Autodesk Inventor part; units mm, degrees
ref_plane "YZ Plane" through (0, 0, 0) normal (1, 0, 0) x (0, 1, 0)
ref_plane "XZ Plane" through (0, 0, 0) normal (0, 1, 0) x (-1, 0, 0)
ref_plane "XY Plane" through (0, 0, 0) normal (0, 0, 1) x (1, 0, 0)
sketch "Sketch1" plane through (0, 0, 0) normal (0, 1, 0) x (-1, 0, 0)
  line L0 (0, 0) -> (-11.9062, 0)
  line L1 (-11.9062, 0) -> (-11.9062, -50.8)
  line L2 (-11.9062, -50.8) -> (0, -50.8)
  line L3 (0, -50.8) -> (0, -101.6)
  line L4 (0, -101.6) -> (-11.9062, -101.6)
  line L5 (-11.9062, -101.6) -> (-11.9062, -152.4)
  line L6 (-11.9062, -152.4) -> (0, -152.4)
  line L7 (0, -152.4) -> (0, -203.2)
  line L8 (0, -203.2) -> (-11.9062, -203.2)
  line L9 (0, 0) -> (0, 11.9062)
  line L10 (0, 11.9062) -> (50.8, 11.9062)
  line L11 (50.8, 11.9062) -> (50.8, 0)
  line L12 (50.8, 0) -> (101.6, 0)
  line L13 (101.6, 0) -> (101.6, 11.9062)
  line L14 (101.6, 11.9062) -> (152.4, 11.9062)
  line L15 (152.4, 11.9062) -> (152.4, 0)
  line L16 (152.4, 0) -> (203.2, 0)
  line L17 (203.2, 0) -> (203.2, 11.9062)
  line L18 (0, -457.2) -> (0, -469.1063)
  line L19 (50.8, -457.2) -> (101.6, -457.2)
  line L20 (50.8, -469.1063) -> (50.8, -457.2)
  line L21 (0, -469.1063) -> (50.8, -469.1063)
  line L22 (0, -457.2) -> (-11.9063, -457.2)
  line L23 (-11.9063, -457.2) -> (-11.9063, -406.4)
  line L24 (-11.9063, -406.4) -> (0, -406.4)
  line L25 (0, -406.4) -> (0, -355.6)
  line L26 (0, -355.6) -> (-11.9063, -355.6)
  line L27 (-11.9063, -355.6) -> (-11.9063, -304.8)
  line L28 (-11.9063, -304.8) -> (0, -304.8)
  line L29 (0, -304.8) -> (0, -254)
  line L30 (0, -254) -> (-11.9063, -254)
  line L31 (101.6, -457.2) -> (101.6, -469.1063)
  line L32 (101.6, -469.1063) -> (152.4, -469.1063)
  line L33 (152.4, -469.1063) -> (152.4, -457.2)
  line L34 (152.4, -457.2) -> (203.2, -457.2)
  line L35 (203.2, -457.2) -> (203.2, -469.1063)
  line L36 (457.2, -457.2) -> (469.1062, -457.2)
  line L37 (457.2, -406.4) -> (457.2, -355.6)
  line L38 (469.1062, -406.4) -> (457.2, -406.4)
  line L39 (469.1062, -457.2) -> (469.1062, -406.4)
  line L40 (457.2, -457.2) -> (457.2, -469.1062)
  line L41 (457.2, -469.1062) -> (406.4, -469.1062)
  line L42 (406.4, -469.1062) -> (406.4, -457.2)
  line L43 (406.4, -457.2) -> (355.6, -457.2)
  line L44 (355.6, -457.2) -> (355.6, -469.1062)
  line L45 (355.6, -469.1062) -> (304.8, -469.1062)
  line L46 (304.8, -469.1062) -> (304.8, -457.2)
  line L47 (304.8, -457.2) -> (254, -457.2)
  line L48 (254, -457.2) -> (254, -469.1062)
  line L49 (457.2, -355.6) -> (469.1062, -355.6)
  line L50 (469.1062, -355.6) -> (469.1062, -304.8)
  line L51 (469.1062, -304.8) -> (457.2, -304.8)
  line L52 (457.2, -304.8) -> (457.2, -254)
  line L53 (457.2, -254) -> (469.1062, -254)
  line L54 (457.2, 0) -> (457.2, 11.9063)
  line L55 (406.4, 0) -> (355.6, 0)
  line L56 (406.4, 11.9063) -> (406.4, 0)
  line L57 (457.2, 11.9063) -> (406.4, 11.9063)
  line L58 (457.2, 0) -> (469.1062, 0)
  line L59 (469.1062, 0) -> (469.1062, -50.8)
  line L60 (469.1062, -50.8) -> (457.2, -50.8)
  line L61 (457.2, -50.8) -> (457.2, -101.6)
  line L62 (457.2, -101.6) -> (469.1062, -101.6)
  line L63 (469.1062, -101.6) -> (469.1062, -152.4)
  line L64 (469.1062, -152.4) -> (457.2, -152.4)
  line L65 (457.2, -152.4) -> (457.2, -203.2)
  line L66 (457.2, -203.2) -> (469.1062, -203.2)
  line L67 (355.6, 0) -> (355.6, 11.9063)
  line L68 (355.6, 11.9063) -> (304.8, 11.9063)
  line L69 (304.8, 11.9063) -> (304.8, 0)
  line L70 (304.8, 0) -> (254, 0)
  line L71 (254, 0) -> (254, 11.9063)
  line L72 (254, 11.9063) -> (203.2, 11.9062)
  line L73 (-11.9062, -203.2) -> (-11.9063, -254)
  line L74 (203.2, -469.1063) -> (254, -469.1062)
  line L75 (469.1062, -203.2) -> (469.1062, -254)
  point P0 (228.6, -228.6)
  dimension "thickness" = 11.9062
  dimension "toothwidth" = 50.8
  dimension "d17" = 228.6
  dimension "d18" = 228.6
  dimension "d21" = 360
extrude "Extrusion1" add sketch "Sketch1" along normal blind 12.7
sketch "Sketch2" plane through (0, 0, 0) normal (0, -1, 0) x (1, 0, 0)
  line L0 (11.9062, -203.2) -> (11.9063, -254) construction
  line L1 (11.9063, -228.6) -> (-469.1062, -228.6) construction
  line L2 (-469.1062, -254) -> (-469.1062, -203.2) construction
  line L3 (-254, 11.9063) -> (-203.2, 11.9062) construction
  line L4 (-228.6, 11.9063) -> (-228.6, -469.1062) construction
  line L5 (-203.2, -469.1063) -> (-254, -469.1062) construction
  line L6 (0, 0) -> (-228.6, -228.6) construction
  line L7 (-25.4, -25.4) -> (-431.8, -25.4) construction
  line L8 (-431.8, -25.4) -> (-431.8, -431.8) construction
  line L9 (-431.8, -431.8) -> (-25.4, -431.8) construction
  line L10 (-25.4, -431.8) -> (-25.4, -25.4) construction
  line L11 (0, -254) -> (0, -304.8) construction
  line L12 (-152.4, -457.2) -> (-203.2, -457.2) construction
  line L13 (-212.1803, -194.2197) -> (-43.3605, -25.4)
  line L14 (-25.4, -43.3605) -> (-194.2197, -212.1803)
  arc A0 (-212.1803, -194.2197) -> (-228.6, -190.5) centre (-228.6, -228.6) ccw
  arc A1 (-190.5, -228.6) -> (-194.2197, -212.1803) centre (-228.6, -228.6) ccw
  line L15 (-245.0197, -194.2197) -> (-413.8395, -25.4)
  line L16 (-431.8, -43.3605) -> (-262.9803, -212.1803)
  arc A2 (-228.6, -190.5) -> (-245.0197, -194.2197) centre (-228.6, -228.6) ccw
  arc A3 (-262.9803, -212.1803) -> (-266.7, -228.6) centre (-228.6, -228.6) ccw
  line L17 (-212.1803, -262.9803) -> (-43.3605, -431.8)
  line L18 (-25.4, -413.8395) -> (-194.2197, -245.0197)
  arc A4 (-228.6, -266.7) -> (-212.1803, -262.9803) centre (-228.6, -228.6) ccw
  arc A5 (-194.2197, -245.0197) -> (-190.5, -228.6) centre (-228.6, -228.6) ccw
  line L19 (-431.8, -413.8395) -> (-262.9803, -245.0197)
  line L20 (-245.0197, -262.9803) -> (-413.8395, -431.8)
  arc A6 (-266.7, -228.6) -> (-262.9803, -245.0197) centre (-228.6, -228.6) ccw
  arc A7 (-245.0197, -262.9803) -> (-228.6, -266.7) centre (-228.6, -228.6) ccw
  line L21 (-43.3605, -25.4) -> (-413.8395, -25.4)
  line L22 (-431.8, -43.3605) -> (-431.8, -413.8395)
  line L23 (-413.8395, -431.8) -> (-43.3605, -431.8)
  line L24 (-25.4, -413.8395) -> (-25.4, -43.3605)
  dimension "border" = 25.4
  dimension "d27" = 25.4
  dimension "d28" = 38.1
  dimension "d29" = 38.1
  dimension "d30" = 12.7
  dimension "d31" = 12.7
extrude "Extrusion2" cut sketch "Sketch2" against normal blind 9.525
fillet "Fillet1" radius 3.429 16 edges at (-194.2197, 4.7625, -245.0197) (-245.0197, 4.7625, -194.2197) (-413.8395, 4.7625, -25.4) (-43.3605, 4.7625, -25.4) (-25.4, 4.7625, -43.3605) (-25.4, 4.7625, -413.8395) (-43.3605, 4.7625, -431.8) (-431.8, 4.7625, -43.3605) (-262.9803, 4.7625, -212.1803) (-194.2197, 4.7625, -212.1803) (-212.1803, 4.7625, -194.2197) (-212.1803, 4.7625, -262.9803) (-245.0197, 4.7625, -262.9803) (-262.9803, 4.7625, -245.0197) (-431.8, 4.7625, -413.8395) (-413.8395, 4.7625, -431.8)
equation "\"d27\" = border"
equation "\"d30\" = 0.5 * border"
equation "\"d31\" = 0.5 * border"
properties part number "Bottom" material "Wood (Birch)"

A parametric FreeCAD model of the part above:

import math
import FreeCAD as App
import Part
import Sketcher
Q = App.Units.Quantity


def edges_at(feature, points):
    """Names of the edges that pass closest to the given points."""
    edges = feature.Shape.Edges
    near = lambda p: min(range(len(edges)), key=lambda i: edges[i].distToShape(Part.Vertex(*p))[0])
    return sorted({f"Edge{near(p) + 1}" for p in points})

doc = App.newDocument("Part")
body = doc.addObject("PartDesign::Body", "Body")

# Sketch on XZ plane
sketch1 = body.newObject("Sketcher::SketchObject", "Sketch")
sketch1.AttachmentSupport = (doc.getObject("XZ_Plane"), [""])
sketch1.MapMode = "FlatFace"
sketch1.addGeometry([
    Part.LineSegment(App.Vector(0, 12, 0), App.Vector(0, 0, 0)),  # 0
    Part.LineSegment(App.Vector(0, 0, 0), App.Vector(12, 0, 0)),  # 1
    Part.LineSegment(App.Vector(12, 0, 0), App.Vector(12, -51, 0)),  # 2
    Part.LineSegment(App.Vector(12, -51, 0), App.Vector(0, -51, 0)),  # 3
    Part.LineSegment(App.Vector(0, -51, 0), App.Vector(0, -102, 0)),  # 4
    Part.LineSegment(App.Vector(0, -102, 0), App.Vector(12, -102, 0)),  # 5
    Part.LineSegment(App.Vector(12, -102, 0), App.Vector(12, -152, 0)),  # 6
    Part.LineSegment(App.Vector(12, -152, 0), App.Vector(0, -152, 0)),  # 7
    Part.LineSegment(App.Vector(0, -152, 0), App.Vector(0, -203, 0)),  # 8
    Part.LineSegment(App.Vector(0, -203, 0), App.Vector(12, -203, 0)),  # 9
    Part.LineSegment(App.Vector(12, -203, 0), App.Vector(12, -254, 0)),  # 10
    Part.LineSegment(App.Vector(12, -254, 0), App.Vector(0, -254, 0)),  # 11
    Part.LineSegment(App.Vector(0, -254, 0), App.Vector(0, -305, 0)),  # 12
    Part.LineSegment(App.Vector(0, -305, 0), App.Vector(12, -305, 0)),  # 13
    Part.LineSegment(App.Vector(12, -305, 0), App.Vector(12, -356, 0)),  # 14
    Part.LineSegment(App.Vector(12, -356, 0), App.Vector(0, -356, 0)),  # 15
    Part.LineSegment(App.Vector(0, -356, 0), App.Vector(0, -406, 0)),  # 16
    Part.LineSegment(App.Vector(0, -406, 0), App.Vector(12, -406, 0)),  # 17
    Part.LineSegment(App.Vector(12, -406, 0), App.Vector(12, -457, 0)),  # 18
    Part.LineSegment(App.Vector(12, -457, 0), App.Vector(0, -457, 0)),  # 19
    Part.LineSegment(App.Vector(0, -457, 0), App.Vector(0, -469, 0)),  # 20
    Part.LineSegment(App.Vector(0, -469, 0), App.Vector(-51, -469, 0)),  # 21
    Part.LineSegment(App.Vector(-51, -469, 0), App.Vector(-51, -457, 0)),  # 22
    Part.LineSegment(App.Vector(-51, -457, 0), App.Vector(-102, -457, 0)),  # 23
    Part.LineSegment(App.Vector(-102, -457, 0), App.Vector(-102, -469, 0)),  # 24
    Part.LineSegment(App.Vector(-102, -469, 0), App.Vector(-152, -469, 0)),  # 25
    Part.LineSegment(App.Vector(-152, -469, 0), App.Vector(-152, -457, 0)),  # 26
    Part.LineSegment(App.Vector(-152, -457, 0), App.Vector(-203, -457, 0)),  # 27
    Part.LineSegment(App.Vector(-203, -457, 0), App.Vector(-203, -469, 0)),  # 28
    Part.LineSegment(App.Vector(-203, -469, 0), App.Vector(-254, -469, 0)),  # 29
    Part.LineSegment(App.Vector(-254, -469, 0), App.Vector(-254, -457, 0)),  # 30
    Part.LineSegment(App.Vector(-254, -457, 0), App.Vector(-305, -457, 0)),  # 31
    Part.LineSegment(App.Vector(-305, -457, 0), App.Vector(-305, -469, 0)),  # 32
    Part.LineSegment(App.Vector(-305, -469, 0), App.Vector(-356, -469, 0)),  # 33
    Part.LineSegment(App.Vector(-356, -469, 0), App.Vector(-356, -457, 0)),  # 34
    Part.LineSegment(App.Vector(-356, -457, 0), App.Vector(-406, -457, 0)),  # 35
    Part.LineSegment(App.Vector(-406, -457, 0), App.Vector(-406, -469, 0)),  # 36
    Part.LineSegment(App.Vector(-406, -469, 0), App.Vector(-457, -469, 0)),  # 37
    Part.LineSegment(App.Vector(-457, -469, 0), App.Vector(-457, -457, 0)),  # 38
    Part.LineSegment(App.Vector(-457, -457, 0), App.Vector(-469, -457, 0)),  # 39
    Part.LineSegment(App.Vector(-469, -457, 0), App.Vector(-469, -406, 0)),  # 40
    Part.LineSegment(App.Vector(-469, -406, 0), App.Vector(-457, -406, 0)),  # 41
    Part.LineSegment(App.Vector(-457, -406, 0), App.Vector(-457, -356, 0)),  # 42
    Part.LineSegment(App.Vector(-457, -356, 0), App.Vector(-469, -356, 0)),  # 43
    Part.LineSegment(App.Vector(-469, -356, 0), App.Vector(-469, -305, 0)),  # 44
    Part.LineSegment(App.Vector(-469, -305, 0), App.Vector(-457, -305, 0)),  # 45
    Part.LineSegment(App.Vector(-457, -305, 0), App.Vector(-457, -254, 0)),  # 46
    Part.LineSegment(App.Vector(-457, -254, 0), App.Vector(-469, -254, 0)),  # 47
    Part.LineSegment(App.Vector(-469, -254, 0), App.Vector(-469, -203, 0)),  # 48
    Part.LineSegment(App.Vector(-469, -203, 0), App.Vector(-457, -203, 0)),  # 49
    Part.LineSegment(App.Vector(-457, -203, 0), App.Vector(-457, -152, 0)),  # 50
    Part.LineSegment(App.Vector(-457, -152, 0), App.Vector(-469, -152, 0)),  # 51
    Part.LineSegment(App.Vector(-469, -152, 0), App.Vector(-469, -102, 0)),  # 52
    Part.LineSegment(App.Vector(-469, -102, 0), App.Vector(-457, -102, 0)),  # 53
    Part.LineSegment(App.Vector(-457, -102, 0), App.Vector(-457, -51, 0)),  # 54
    Part.LineSegment(App.Vector(-457, -51, 0), App.Vector(-469, -51, 0)),  # 55
    Part.LineSegment(App.Vector(-469, -51, 0), App.Vector(-469, 0, 0)),  # 56
    Part.LineSegment(App.Vector(-469, 0, 0), App.Vector(-457, 0, 0)),  # 57
    Part.LineSegment(App.Vector(-457, 0, 0), App.Vector(-457, 12, 0)),  # 58
    Part.LineSegment(App.Vector(-457, 12, 0), App.Vector(-406, 12, 0)),  # 59
    Part.LineSegment(App.Vector(-406, 12, 0), App.Vector(-406, 0, 0)),  # 60
    Part.LineSegment(App.Vector(-406, 0, 0), App.Vector(-356, 0, 0)),  # 61
    Part.LineSegment(App.Vector(-356, 0, 0), App.Vector(-356, 12, 0)),  # 62
    Part.LineSegment(App.Vector(-356, 12, 0), App.Vector(-305, 12, 0)),  # 63
    Part.LineSegment(App.Vector(-305, 12, 0), App.Vector(-305, 0, 0)),  # 64
    Part.LineSegment(App.Vector(-305, 0, 0), App.Vector(-254, 0, 0)),  # 65
    Part.LineSegment(App.Vector(-254, 0, 0), App.Vector(-254, 12, 0)),  # 66
    Part.LineSegment(App.Vector(-254, 12, 0), App.Vector(-203, 12, 0)),  # 67
    Part.LineSegment(App.Vector(-203, 12, 0), App.Vector(-203, 0, 0)),  # 68
    Part.LineSegment(App.Vector(-203, 0, 0), App.Vector(-152, 0, 0)),  # 69
    Part.LineSegment(App.Vector(-152, 0, 0), App.Vector(-152, 12, 0)),  # 70
    Part.LineSegment(App.Vector(-152, 12, 0), App.Vector(-102, 12, 0)),  # 71
    Part.LineSegment(App.Vector(-102, 12, 0), App.Vector(-102, 0, 0)),  # 72
    Part.LineSegment(App.Vector(-102, 0, 0), App.Vector(-51, 0, 0)),  # 73
    Part.LineSegment(App.Vector(-51, 0, 0), App.Vector(-51, 12, 0)),  # 74
    Part.LineSegment(App.Vector(-51, 12, 0), App.Vector(0, 12, 0)),  # 75
], False)
sketch1.addConstraint([
    Sketcher.Constraint("Coincident", 0, 2, 1, 1),
    Sketcher.Constraint("Coincident", 1, 2, 2, 1),
    Sketcher.Constraint("Coincident", 2, 2, 3, 1),
    Sketcher.Constraint("Coincident", 3, 2, 4, 1),
    Sketcher.Constraint("Coincident", 4, 2, 5, 1),
    Sketcher.Constraint("Coincident", 5, 2, 6, 1),
    Sketcher.Constraint("Coincident", 6, 2, 7, 1),
    Sketcher.Constraint("Coincident", 7, 2, 8, 1),
    Sketcher.Constraint("Coincident", 8, 2, 9, 1),
    Sketcher.Constraint("Coincident", 9, 2, 10, 1),
    Sketcher.Constraint("Coincident", 10, 2, 11, 1),
    Sketcher.Constraint("Coincident", 11, 2, 12, 1),
    Sketcher.Constraint("Coincident", 12, 2, 13, 1),
    Sketcher.Constraint("Coincident", 13, 2, 14, 1),
    Sketcher.Constraint("Coincident", 14, 2, 15, 1),
    Sketcher.Constraint("Coincident", 15, 2, 16, 1),
    Sketcher.Constraint("Coincident", 16, 2, 17, 1),
    Sketcher.Constraint("Coincident", 17, 2, 18, 1),
    Sketcher.Constraint("Coincident", 18, 2, 19, 1),
    Sketcher.Constraint("Coincident", 19, 2, 20, 1),
    Sketcher.Constraint("Coincident", 20, 2, 21, 1),
    Sketcher.Constraint("Coincident", 21, 2, 22, 1),
    Sketcher.Constraint("Coincident", 22, 2, 23, 1),
    Sketcher.Constraint("Coincident", 23, 2, 24, 1),
    Sketcher.Constraint("Coincident", 24, 2, 25, 1),
    Sketcher.Constraint("Coincident", 25, 2, 26, 1),
    Sketcher.Constraint("Coincident", 26, 2, 27, 1),
    Sketcher.Constraint("Coincident", 27, 2, 28, 1),
    Sketcher.Constraint("Coincident", 28, 2, 29, 1),
    Sketcher.Constraint("Coincident", 29, 2, 30, 1),
    Sketcher.Constraint("Coincident", 30, 2, 31, 1),
    Sketcher.Constraint("Coincident", 31, 2, 32, 1),
    Sketcher.Constraint("Coincident", 32, 2, 33, 1),
    Sketcher.Constraint("Coincident", 33, 2, 34, 1),
    Sketcher.Constraint("Coincident", 34, 2, 35, 1),
    Sketcher.Constraint("Coincident", 35, 2, 36, 1),
    Sketcher.Constraint("Coincident", 36, 2, 37, 1),
    Sketcher.Constraint("Coincident", 37, 2, 38, 1),
    Sketcher.Constraint("Coincident", 38, 2, 39, 1),
    Sketcher.Constraint("Coincident", 39, 2, 40, 1),
    Sketcher.Constraint("Coincident", 40, 2, 41, 1),
    Sketcher.Constraint("Coincident", 41, 2, 42, 1),
    Sketcher.Constraint("Coincident", 42, 2, 43, 1),
    Sketcher.Constraint("Coincident", 43, 2, 44, 1),
    Sketcher.Constraint("Coincident", 44, 2, 45, 1),
    Sketcher.Constraint("Coincident", 45, 2, 46, 1),
    Sketcher.Constraint("Coincident", 46, 2, 47, 1),
    Sketcher.Constraint("Coincident", 47, 2, 48, 1),
    Sketcher.Constraint("Coincident", 48, 2, 49, 1),
    Sketcher.Constraint("Coincident", 49, 2, 50, 1),
    Sketcher.Constraint("Coincident", 50, 2, 51, 1),
    Sketcher.Constraint("Coincident", 51, 2, 52, 1),
    Sketcher.Constraint("Coincident", 52, 2, 53, 1),
    Sketcher.Constraint("Coincident", 53, 2, 54, 1),
    Sketcher.Constraint("Coincident", 54, 2, 55, 1),
    Sketcher.Constraint("Coincident", 55, 2, 56, 1),
    Sketcher.Constraint("Coincident", 56, 2, 57, 1),
    Sketcher.Constraint("Coincident", 57, 2, 58, 1),
    Sketcher.Constraint("Coincident", 58, 2, 59, 1),
    Sketcher.Constraint("Coincident", 59, 2, 60, 1),
    Sketcher.Constraint("Coincident", 60, 2, 61, 1),
    Sketcher.Constraint("Coincident", 61, 2, 62, 1),
    Sketcher.Constraint("Coincident", 62, 2, 63, 1),
    Sketcher.Constraint("Coincident", 63, 2, 64, 1),
    Sketcher.Constraint("Coincident", 64, 2, 65, 1),
    Sketcher.Constraint("Coincident", 65, 2, 66, 1),
    Sketcher.Constraint("Coincident", 66, 2, 67, 1),
    Sketcher.Constraint("Coincident", 67, 2, 68, 1),
    Sketcher.Constraint("Coincident", 68, 2, 69, 1),
    Sketcher.Constraint("Coincident", 69, 2, 70, 1),
    Sketcher.Constraint("Coincident", 70, 2, 71, 1),
    Sketcher.Constraint("Coincident", 71, 2, 72, 1),
    Sketcher.Constraint("Coincident", 72, 2, 73, 1),
    Sketcher.Constraint("Coincident", 73, 2, 74, 1),
    Sketcher.Constraint("Coincident", 74, 2, 75, 1),
    Sketcher.Constraint("Coincident", 75, 2, 0, 1),
    Sketcher.Constraint("Vertical", 0),
    Sketcher.Constraint("Horizontal", 1),
    Sketcher.Constraint("Vertical", 2),
    Sketcher.Constraint("Horizontal", 3),
    Sketcher.Constraint("Vertical", 4),
    Sketcher.Constraint("Horizontal", 5),
    Sketcher.Constraint("Vertical", 6),
    Sketcher.Constraint("Horizontal", 7),
    Sketcher.Constraint("Vertical", 8),
    Sketcher.Constraint("Horizontal", 9),
    Sketcher.Constraint("Vertical", 10),
    Sketcher.Constraint("Horizontal", 11),
    Sketcher.Constraint("Vertical", 12),
    Sketcher.Constraint("Horizontal", 13),
    Sketcher.Constraint("Vertical", 14),
    Sketcher.Constraint("Horizontal", 15),
    Sketcher.Constraint("Vertical", 16),
    Sketcher.Constraint("Horizontal", 17),
    Sketcher.Constraint("Vertical", 18),
    Sketcher.Constraint("Horizontal", 19),
    Sketcher.Constraint("Vertical", 20),
    Sketcher.Constraint("Horizontal", 21),
    Sketcher.Constraint("Vertical", 22),
    Sketcher.Constraint("Horizontal", 23),
    Sketcher.Constraint("Vertical", 24),
    Sketcher.Constraint("Horizontal", 25),
    Sketcher.Constraint("Vertical", 26),
    Sketcher.Constraint("Horizontal", 27),
    Sketcher.Constraint("Vertical", 28),
    Sketcher.Constraint("Horizontal", 29),
    Sketcher.Constraint("Vertical", 30),
    Sketcher.Constraint("Horizontal", 31),
    Sketcher.Constraint("Vertical", 32),
    Sketcher.Constraint("Horizontal", 33),
    Sketcher.Constraint("Vertical", 34),
    Sketcher.Constraint("Horizontal", 35),
    Sketcher.Constraint("Vertical", 36),
    Sketcher.Constraint("Horizontal", 37),
    Sketcher.Constraint("Vertical", 38),
    Sketcher.Constraint("Horizontal", 39),
    Sketcher.Constraint("Vertical", 40),
    Sketcher.Constraint("Horizontal", 41),
    Sketcher.Constraint("Vertical", 42),
    Sketcher.Constraint("Horizontal", 43),
    Sketcher.Constraint("Vertical", 44),
    Sketcher.Constraint("Horizontal", 45),
    Sketcher.Constraint("Vertical", 46),
    Sketcher.Constraint("Horizontal", 47),
    Sketcher.Constraint("Vertical", 48),
    Sketcher.Constraint("Horizontal", 49),
    Sketcher.Constraint("Vertical", 50),
    Sketcher.Constraint("Horizontal", 51),
    Sketcher.Constraint("Vertical", 52),
    Sketcher.Constraint("Horizontal", 53),
    Sketcher.Constraint("Vertical", 54),
    Sketcher.Constraint("Horizontal", 55),
    Sketcher.Constraint("Vertical", 56),
    Sketcher.Constraint("Horizontal", 57),
    Sketcher.Constraint("Vertical", 58),
    Sketcher.Constraint("Horizontal", 59),
    Sketcher.Constraint("Vertical", 60),
    Sketcher.Constraint("Horizontal", 61),
    Sketcher.Constraint("Vertical", 62),
    Sketcher.Constraint("Horizontal", 63),
    Sketcher.Constraint("Vertical", 64),
    Sketcher.Constraint("Horizontal", 65),
    Sketcher.Constraint("Vertical", 66),
    Sketcher.Constraint("Horizontal", 67),
    Sketcher.Constraint("Vertical", 68),
    Sketcher.Constraint("Horizontal", 69),
    Sketcher.Constraint("Vertical", 70),
    Sketcher.Constraint("Horizontal", 71),
    Sketcher.Constraint("Vertical", 72),
    Sketcher.Constraint("Horizontal", 73),
    Sketcher.Constraint("Vertical", 74),
    Sketcher.Constraint("Horizontal", 75),
    Sketcher.Constraint("Coincident", 0, 2, -1, 1),
    Sketcher.Constraint("PointOnObject", 3, 2, -2),
    Sketcher.Constraint("PointOnObject", 7, 2, -2),
    Sketcher.Constraint("PointOnObject", 11, 2, -2),
    Sketcher.Constraint("PointOnObject", 15, 2, -2),
    Sketcher.Constraint("PointOnObject", 19, 2, -2),
    Sketcher.Constraint("PointOnObject", 56, 2, -1),
    Sketcher.Constraint("PointOnObject", 60, 2, -1),
    Sketcher.Constraint("PointOnObject", 64, 2, -1),
    Sketcher.Constraint("PointOnObject", 68, 2, -1),
    Sketcher.Constraint("PointOnObject", 72, 2, -1),
    Sketcher.Constraint("Horizontal", 19, 2, 22, 2),
    Sketcher.Constraint("Horizontal", 21, 2, 24, 2),
    Sketcher.Constraint("Horizontal", 23, 2, 26, 2),
    Sketcher.Constraint("Horizontal", 25, 2, 28, 2),
    Sketcher.Constraint("Horizontal", 27, 2, 30, 2),
    Sketcher.Constraint("Horizontal", 29, 2, 32, 2),
    Sketcher.Constraint("Horizontal", 31, 2, 34, 2),
    Sketcher.Constraint("Horizontal", 33, 2, 36, 2),
    Sketcher.Constraint("Horizontal", 35, 2, 38, 2),
    Sketcher.Constraint("Horizontal", 17, 2, 40, 2),
    Sketcher.Constraint("Horizontal", 15, 2, 42, 2),
    Sketcher.Constraint("Horizontal", 13, 2, 44, 2),
    Sketcher.Constraint("Horizontal", 11, 2, 46, 2),
    Sketcher.Constraint("Horizontal", 9, 2, 48, 2),
    Sketcher.Constraint("Horizontal", 7, 2, 50, 2),
    Sketcher.Constraint("Horizontal", 5, 2, 52, 2),
    Sketcher.Constraint("Horizontal", 3, 2, 54, 2),
    Sketcher.Constraint("Horizontal", 59, 2, 62, 2),
    Sketcher.Constraint("Horizontal", 63, 2, 66, 2),
    Sketcher.Constraint("Horizontal", 67, 2, 70, 2),
    Sketcher.Constraint("Horizontal", 71, 2, 74, 2),
    Sketcher.Constraint("Vertical", 2, 2, 5, 2),
    Sketcher.Constraint("Vertical", 6, 2, 9, 2),
    Sketcher.Constraint("Vertical", 10, 2, 13, 2),
    Sketcher.Constraint("Vertical", 14, 2, 17, 2),
    Sketcher.Constraint("Vertical", 38, 2, 41, 2),
    Sketcher.Constraint("Vertical", 40, 2, 43, 2),
    Sketcher.Constraint("Vertical", 42, 2, 45, 2),
    Sketcher.Constraint("Vertical", 44, 2, 47, 2),
    Sketcher.Constraint("Vertical", 46, 2, 49, 2),
    Sketcher.Constraint("Vertical", 48, 2, 51, 2),
    Sketcher.Constraint("Vertical", 50, 2, 53, 2),
    Sketcher.Constraint("Vertical", 52, 2, 55, 2),
    Sketcher.Constraint("Vertical", 54, 2, 57, 2),
    Sketcher.Constraint("Vertical", 36, 2, 59, 2),
    Sketcher.Constraint("Vertical", 34, 2, 61, 2),
    Sketcher.Constraint("Vertical", 32, 2, 63, 2),
    Sketcher.Constraint("Vertical", 30, 2, 65, 2),
    Sketcher.Constraint("Vertical", 28, 2, 67, 2),
    Sketcher.Constraint("Vertical", 26, 2, 69, 2),
    Sketcher.Constraint("Vertical", 24, 2, 71, 2),
    Sketcher.Constraint("Vertical", 22, 2, 73, 2),
    Sketcher.Constraint("Equal", 21, 23),
    Sketcher.Constraint("Equal", 23, 25),
    Sketcher.Constraint("Equal", 25, 27),
    Sketcher.Constraint("Equal", 27, 29),
    Sketcher.Constraint("Equal", 29, 31),
    Sketcher.Constraint("Equal", 31, 33),
    Sketcher.Constraint("Equal", 33, 35),
    Sketcher.Constraint("Equal", 35, 37),
    Sketcher.Constraint("Equal", 19, 39),
    Sketcher.Constraint("Equal", 57, 0),
    Sketcher.Constraint("Equal", 75, 2),
    Sketcher.Constraint("Equal", 2, 4),
    Sketcher.Constraint("Equal", 4, 6),
    Sketcher.Constraint("Equal", 6, 8),
    Sketcher.Constraint("Equal", 8, 10),
    Sketcher.Constraint("Equal", 10, 12),
    Sketcher.Constraint("Equal", 12, 14),
    Sketcher.Constraint("Equal", 14, 16),
    Sketcher.Constraint("Equal", 16, 18),
    Sketcher.Constraint("Equal", 0, 20),
    Sketcher.Constraint("DistanceX", 21, 2, 21, 1, Q("2 in")),
    Sketcher.Constraint("DistanceX", 1, 1, 1, 2, Q("0.468748 in")),
])
pad1 = body.newObject("PartDesign::Pad", "Pad")
pad1.Profile = sketch1
pad1.Length = Q("0.5 in")
pad1.Reversed = True

# Sketch on XZ plane
sketch2 = body.newObject("Sketcher::SketchObject", "Sketch001")
sketch2.AttachmentSupport = (doc.getObject("XZ_Plane"), [""])
sketch2.MapMode = "FlatFace"
sketch2.addGeometry([
    Part.ArcOfCircle(Part.Circle(App.Vector(-229, -229, 0), App.Vector(0, 0, 1), 38), math.radians(64), math.radians(90)),  # 0
    Part.LineSegment(App.Vector(-212, -194, 0), App.Vector(-43, -25, 0)),  # 1
    Part.LineSegment(App.Vector(-43, -25, 0), App.Vector(-414, -25, 0)),  # 2
    Part.LineSegment(App.Vector(-414, -25, 0), App.Vector(-245, -194, 0)),  # 3
    Part.ArcOfCircle(Part.Circle(App.Vector(-229, -229, 0), App.Vector(0, 0, 1), 38), math.radians(90), math.radians(116)),  # 4
    Part.LineSegment(App.Vector(-25, -414, 0), App.Vector(-25, -43, 0)),  # 5
    Part.LineSegment(App.Vector(-25, -43, 0), App.Vector(-194, -212, 0)),  # 6
    Part.ArcOfCircle(Part.Circle(App.Vector(-229, -229, 0), App.Vector(0, 0, 1), 38), math.radians(0), math.radians(26)),  # 7
    Part.ArcOfCircle(Part.Circle(App.Vector(-229, -229, 0), App.Vector(0, 0, 1), 38), math.radians(-26), math.radians(0)),  # 8
    Part.LineSegment(App.Vector(-194, -245, 0), App.Vector(-25, -414, 0)),  # 9
    Part.LineSegment(App.Vector(-263, -212, 0), App.Vector(-432, -43, 0)),  # 10
    Part.LineSegment(App.Vector(-432, -43, 0), App.Vector(-432, -414, 0)),  # 11
    Part.LineSegment(App.Vector(-432, -414, 0), App.Vector(-263, -245, 0)),  # 12
    Part.ArcOfCircle(Part.Circle(App.Vector(-229, -229, 0), App.Vector(0, 0, 1), 38), math.radians(180), math.radians(206)),  # 13
    Part.ArcOfCircle(Part.Circle(App.Vector(-229, -229, 0), App.Vector(0, 0, 1), 38), math.radians(154), math.radians(180)),  # 14
    Part.LineSegment(App.Vector(-43, -432, 0), App.Vector(-212, -263, 0)),  # 15
    Part.ArcOfCircle(Part.Circle(App.Vector(-229, -229, 0), App.Vector(0, 0, 1), 38), math.radians(-90), math.radians(-64)),  # 16
    Part.ArcOfCircle(Part.Circle(App.Vector(-229, -229, 0), App.Vector(0, 0, 1), 38), math.radians(-116), math.radians(-90)),  # 17
    Part.LineSegment(App.Vector(-245, -263, 0), App.Vector(-414, -432, 0)),  # 18
    Part.LineSegment(App.Vector(-414, -432, 0), App.Vector(-43, -432, 0)),  # 19
], False)
sketch2.addConstraint([
    Sketcher.Constraint("Coincident", 0, 1, 1, 1),
    Sketcher.Constraint("Coincident", 1, 2, 2, 1),
    Sketcher.Constraint("Coincident", 2, 2, 3, 1),
    Sketcher.Constraint("Coincident", 3, 2, 4, 2),
    Sketcher.Constraint("Tangent", 4, 1, 0, 2),
    Sketcher.Constraint("Coincident", 5, 2, 6, 1),
    Sketcher.Constraint("Coincident", 6, 2, 7, 2),
    Sketcher.Constraint("Tangent", 7, 1, 8, 2),
    Sketcher.Constraint("Coincident", 8, 1, 9, 1),
    Sketcher.Constraint("Coincident", 9, 2, 5, 1),
    Sketcher.Constraint("Coincident", 10, 2, 11, 1),
    Sketcher.Constraint("Coincident", 11, 2, 12, 1),
    Sketcher.Constraint("Coincident", 12, 2, 13, 2),
    Sketcher.Constraint("Tangent", 13, 1, 14, 2),
    Sketcher.Constraint("Coincident", 14, 1, 10, 1),
    Sketcher.Constraint("Coincident", 15, 2, 16, 2),
    Sketcher.Constraint("Tangent", 16, 1, 17, 2),
    Sketcher.Constraint("Coincident", 17, 1, 18, 1),
    Sketcher.Constraint("Coincident", 18, 2, 19, 1),
    Sketcher.Constraint("Coincident", 19, 2, 15, 1),
    Sketcher.Constraint("Horizontal", 2),
    Sketcher.Constraint("Vertical", 5),
    Sketcher.Constraint("Vertical", 11),
    Sketcher.Constraint("Horizontal", 19),
    Sketcher.Constraint("Coincident", 7, 3, 0, 3),
    Sketcher.Constraint("Coincident", 13, 3, 0, 3),
    Sketcher.Constraint("Coincident", 16, 3, 0, 3),
    Sketcher.Constraint("Equal", 0, 4),
    Sketcher.Constraint("Equal", 4, 7),
    Sketcher.Constraint("Equal", 7, 8),
    Sketcher.Constraint("Equal", 8, 13),
    Sketcher.Constraint("Equal", 13, 14),
    Sketcher.Constraint("Equal", 14, 16),
    Sketcher.Constraint("Equal", 16, 17),
    Sketcher.Constraint("Perpendicular", 1, 3),
    Sketcher.Constraint("Perpendicular", 3, 6),
    Sketcher.Constraint("Perpendicular", 6, 9),
    Sketcher.Constraint("Parallel", 9, 10),
    Sketcher.Constraint("Perpendicular", 10, 12),
    Sketcher.Constraint("Perpendicular", 12, 15),
    Sketcher.Constraint("Perpendicular", 15, 18),
    Sketcher.Constraint("Horizontal", 0, 1, 3, 2),
    Sketcher.Constraint("Horizontal", 17, 3, 7, 1),
    Sketcher.Constraint("Horizontal", 5, 2, 10, 2),
    Sketcher.Constraint("Horizontal", 9, 2, 11, 2),
    Sketcher.Constraint("Horizontal", 8, 1, 12, 2),
    Sketcher.Constraint("Horizontal", 7, 1, 13, 1),
    Sketcher.Constraint("Horizontal", 6, 2, 14, 1),
    Sketcher.Constraint("Horizontal", 15, 2, 17, 1),
    Sketcher.Constraint("Vertical", 17, 3, 4, 1),
    Sketcher.Constraint("Vertical", 6, 2, 8, 1),
    Sketcher.Constraint("Vertical", 0, 1, 15, 2),
    Sketcher.Constraint("Vertical", 4, 1, 16, 1),
    Sketcher.Constraint("Vertical", 2, 2, 18, 2),
    Sketcher.Constraint("Equal", 19, 5),
    Sketcher.Constraint("Equal", 3, 6),
    Sketcher.Constraint("Radius", 0, Q("1.5 in")),
    Sketcher.Constraint("DistanceY", 1, 2, -1, 1, Q("1 in")),
    Sketcher.Constraint("DistanceX", 5, 2, -1, 1, Q("1 in")),
    Sketcher.Constraint("DistanceX", 0, 3, -1, 1, Q("9 in")),
    Sketcher.Constraint("Distance", 1, Q("9.3995 in")),
])
pocket1 = body.newObject("PartDesign::Pocket", "Pocket")
pocket1.Profile = sketch2
pocket1.Length = Q("0.375 in")
doc.recompute()

fillet = body.newObject("PartDesign::Fillet", "Fillet")
fillet.Base = (pocket1, edges_at(pocket1, [
    (-194.22, 4.763, -245.02),
    (-245.02, 4.763, -194.22),
    (-413.839, 4.763, -25.4),
    (-43.361, 4.763, -25.4),
    (-25.4, 4.763, -43.361),
    (-25.4, 4.763, -413.839),
    (-43.361, 4.763, -431.8),
    (-431.8, 4.763, -43.361),
    (-262.98, 4.763, -212.18),
    (-194.22, 4.763, -212.18),
    (-212.18, 4.763, -194.22),
    (-212.18, 4.763, -262.98),
    (-245.02, 4.763, -262.98),
    (-262.98, 4.763, -245.02),
    (-431.8, 4.763, -413.839),
    (-413.839, 4.763, -431.8),
]))
fillet.Radius = Q("0.135 in")

doc.recompute()
